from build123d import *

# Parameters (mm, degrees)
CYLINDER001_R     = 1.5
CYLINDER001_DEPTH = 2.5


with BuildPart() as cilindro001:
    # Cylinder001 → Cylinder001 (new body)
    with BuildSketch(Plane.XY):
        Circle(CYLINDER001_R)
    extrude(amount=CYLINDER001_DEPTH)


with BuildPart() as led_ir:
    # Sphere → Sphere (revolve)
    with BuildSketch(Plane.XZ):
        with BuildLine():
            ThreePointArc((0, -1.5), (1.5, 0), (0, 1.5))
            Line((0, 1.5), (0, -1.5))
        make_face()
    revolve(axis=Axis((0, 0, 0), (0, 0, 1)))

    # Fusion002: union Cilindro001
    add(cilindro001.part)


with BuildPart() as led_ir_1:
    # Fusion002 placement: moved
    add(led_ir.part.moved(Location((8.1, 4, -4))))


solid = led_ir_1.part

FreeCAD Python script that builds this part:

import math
import FreeCAD as App
import Part
import Sketcher
from FreeCAD import Vector

doc = App.newDocument("Part")
params = doc.addObject("Spreadsheet::Sheet", "Params")
for row, (alias, value) in enumerate([
    ("sketch1_diameter", "3 mm"),
    ("pad1_length", "2.5 mm"),
    ("sketch2_radius", "1.5 mm"),
    ("revolution_angle", "360 deg"),
], start=1):
    params.set(f"A{row}", alias)
    params.set(f"B{row}", "=" + value)
    params.setAlias(f"B{row}", alias)

body = doc.addObject("PartDesign::Body", "Body")

sketch1 = body.newObject("Sketcher::SketchObject", "Sketch")
sketch1.AttachmentSupport = (doc.getObject("XY_Plane"), [""])
sketch1.MapMode = "FlatFace"
sketch1.addGeometry(Part.Circle(Vector(0, 0, 0), Vector(0, 0, 1), 1.5), False)
sketch1.addConstraint(Sketcher.Constraint("Coincident", 0, 3, -1, 1))
sketch1.addConstraint(Sketcher.Constraint("Diameter", 0, 3.0))
sketch1.setExpression("Constraints[1]", "Params.sketch1_diameter")
pad1 = body.newObject("PartDesign::Pad", "Pad")
pad1.Profile = sketch1
pad1.setExpression("Length", "Params.pad1_length")
body2 = doc.addObject("PartDesign::Body", "Body001")

sketch2 = body2.newObject("Sketcher::SketchObject", "Sketch001")
sketch2.AttachmentSupport = (doc.getObject("XZ_Plane001"), [""])
sketch2.MapMode = "FlatFace"
sketch2.addGeometry(Part.ArcOfCircle(Part.Circle(Vector(0, 0, 0), Vector(0, 0, 1), 1.5), math.radians(-90), math.radians(90)), False)
sketch2.addGeometry(Part.LineSegment(Vector(0, 1.5, 0), Vector(0, -1.5, 0)), False)
sketch2.addConstraint(Sketcher.Constraint("Coincident", 0, 1, 1, 2))
sketch2.addConstraint(Sketcher.Constraint("Coincident", 1, 1, 0, 2))
sketch2.addConstraint(Sketcher.Constraint("Vertical", 1))
sketch2.addConstraint(Sketcher.Constraint("Coincident", 0, 3, -1, 1))
sketch2.addConstraint(Sketcher.Constraint("PointOnObject", 0, 1, -2))
sketch2.addConstraint(Sketcher.Constraint("Radius", 0, 1.5))
sketch2.setExpression("Constraints[5]", "Params.sketch2_radius")
revolution = body2.newObject("PartDesign::Revolution", "Revolution")
revolution.Profile = sketch2
revolution.ReferenceAxis = (sketch2, ["V_Axis"])
revolution.setExpression("Angle", "Params.revolution_angle")
doc.recompute()

boolean = body2.newObject("PartDesign::Boolean", "Boolean")
boolean.Type = "Fuse"
boolean.addObjects([body])
body3 = doc.addObject("PartDesign::Body", "Body002")
doc.recompute()

body2.Placement = App.Placement(Vector(8.1, 4, -4), App.Rotation(Vector(0, 0, 1), 0))
boolean2 = body3.newObject("PartDesign::Boolean", "Boolean001")
boolean2.Type = "Fuse"
boolean2.addObjects([body2])

doc.recompute()
